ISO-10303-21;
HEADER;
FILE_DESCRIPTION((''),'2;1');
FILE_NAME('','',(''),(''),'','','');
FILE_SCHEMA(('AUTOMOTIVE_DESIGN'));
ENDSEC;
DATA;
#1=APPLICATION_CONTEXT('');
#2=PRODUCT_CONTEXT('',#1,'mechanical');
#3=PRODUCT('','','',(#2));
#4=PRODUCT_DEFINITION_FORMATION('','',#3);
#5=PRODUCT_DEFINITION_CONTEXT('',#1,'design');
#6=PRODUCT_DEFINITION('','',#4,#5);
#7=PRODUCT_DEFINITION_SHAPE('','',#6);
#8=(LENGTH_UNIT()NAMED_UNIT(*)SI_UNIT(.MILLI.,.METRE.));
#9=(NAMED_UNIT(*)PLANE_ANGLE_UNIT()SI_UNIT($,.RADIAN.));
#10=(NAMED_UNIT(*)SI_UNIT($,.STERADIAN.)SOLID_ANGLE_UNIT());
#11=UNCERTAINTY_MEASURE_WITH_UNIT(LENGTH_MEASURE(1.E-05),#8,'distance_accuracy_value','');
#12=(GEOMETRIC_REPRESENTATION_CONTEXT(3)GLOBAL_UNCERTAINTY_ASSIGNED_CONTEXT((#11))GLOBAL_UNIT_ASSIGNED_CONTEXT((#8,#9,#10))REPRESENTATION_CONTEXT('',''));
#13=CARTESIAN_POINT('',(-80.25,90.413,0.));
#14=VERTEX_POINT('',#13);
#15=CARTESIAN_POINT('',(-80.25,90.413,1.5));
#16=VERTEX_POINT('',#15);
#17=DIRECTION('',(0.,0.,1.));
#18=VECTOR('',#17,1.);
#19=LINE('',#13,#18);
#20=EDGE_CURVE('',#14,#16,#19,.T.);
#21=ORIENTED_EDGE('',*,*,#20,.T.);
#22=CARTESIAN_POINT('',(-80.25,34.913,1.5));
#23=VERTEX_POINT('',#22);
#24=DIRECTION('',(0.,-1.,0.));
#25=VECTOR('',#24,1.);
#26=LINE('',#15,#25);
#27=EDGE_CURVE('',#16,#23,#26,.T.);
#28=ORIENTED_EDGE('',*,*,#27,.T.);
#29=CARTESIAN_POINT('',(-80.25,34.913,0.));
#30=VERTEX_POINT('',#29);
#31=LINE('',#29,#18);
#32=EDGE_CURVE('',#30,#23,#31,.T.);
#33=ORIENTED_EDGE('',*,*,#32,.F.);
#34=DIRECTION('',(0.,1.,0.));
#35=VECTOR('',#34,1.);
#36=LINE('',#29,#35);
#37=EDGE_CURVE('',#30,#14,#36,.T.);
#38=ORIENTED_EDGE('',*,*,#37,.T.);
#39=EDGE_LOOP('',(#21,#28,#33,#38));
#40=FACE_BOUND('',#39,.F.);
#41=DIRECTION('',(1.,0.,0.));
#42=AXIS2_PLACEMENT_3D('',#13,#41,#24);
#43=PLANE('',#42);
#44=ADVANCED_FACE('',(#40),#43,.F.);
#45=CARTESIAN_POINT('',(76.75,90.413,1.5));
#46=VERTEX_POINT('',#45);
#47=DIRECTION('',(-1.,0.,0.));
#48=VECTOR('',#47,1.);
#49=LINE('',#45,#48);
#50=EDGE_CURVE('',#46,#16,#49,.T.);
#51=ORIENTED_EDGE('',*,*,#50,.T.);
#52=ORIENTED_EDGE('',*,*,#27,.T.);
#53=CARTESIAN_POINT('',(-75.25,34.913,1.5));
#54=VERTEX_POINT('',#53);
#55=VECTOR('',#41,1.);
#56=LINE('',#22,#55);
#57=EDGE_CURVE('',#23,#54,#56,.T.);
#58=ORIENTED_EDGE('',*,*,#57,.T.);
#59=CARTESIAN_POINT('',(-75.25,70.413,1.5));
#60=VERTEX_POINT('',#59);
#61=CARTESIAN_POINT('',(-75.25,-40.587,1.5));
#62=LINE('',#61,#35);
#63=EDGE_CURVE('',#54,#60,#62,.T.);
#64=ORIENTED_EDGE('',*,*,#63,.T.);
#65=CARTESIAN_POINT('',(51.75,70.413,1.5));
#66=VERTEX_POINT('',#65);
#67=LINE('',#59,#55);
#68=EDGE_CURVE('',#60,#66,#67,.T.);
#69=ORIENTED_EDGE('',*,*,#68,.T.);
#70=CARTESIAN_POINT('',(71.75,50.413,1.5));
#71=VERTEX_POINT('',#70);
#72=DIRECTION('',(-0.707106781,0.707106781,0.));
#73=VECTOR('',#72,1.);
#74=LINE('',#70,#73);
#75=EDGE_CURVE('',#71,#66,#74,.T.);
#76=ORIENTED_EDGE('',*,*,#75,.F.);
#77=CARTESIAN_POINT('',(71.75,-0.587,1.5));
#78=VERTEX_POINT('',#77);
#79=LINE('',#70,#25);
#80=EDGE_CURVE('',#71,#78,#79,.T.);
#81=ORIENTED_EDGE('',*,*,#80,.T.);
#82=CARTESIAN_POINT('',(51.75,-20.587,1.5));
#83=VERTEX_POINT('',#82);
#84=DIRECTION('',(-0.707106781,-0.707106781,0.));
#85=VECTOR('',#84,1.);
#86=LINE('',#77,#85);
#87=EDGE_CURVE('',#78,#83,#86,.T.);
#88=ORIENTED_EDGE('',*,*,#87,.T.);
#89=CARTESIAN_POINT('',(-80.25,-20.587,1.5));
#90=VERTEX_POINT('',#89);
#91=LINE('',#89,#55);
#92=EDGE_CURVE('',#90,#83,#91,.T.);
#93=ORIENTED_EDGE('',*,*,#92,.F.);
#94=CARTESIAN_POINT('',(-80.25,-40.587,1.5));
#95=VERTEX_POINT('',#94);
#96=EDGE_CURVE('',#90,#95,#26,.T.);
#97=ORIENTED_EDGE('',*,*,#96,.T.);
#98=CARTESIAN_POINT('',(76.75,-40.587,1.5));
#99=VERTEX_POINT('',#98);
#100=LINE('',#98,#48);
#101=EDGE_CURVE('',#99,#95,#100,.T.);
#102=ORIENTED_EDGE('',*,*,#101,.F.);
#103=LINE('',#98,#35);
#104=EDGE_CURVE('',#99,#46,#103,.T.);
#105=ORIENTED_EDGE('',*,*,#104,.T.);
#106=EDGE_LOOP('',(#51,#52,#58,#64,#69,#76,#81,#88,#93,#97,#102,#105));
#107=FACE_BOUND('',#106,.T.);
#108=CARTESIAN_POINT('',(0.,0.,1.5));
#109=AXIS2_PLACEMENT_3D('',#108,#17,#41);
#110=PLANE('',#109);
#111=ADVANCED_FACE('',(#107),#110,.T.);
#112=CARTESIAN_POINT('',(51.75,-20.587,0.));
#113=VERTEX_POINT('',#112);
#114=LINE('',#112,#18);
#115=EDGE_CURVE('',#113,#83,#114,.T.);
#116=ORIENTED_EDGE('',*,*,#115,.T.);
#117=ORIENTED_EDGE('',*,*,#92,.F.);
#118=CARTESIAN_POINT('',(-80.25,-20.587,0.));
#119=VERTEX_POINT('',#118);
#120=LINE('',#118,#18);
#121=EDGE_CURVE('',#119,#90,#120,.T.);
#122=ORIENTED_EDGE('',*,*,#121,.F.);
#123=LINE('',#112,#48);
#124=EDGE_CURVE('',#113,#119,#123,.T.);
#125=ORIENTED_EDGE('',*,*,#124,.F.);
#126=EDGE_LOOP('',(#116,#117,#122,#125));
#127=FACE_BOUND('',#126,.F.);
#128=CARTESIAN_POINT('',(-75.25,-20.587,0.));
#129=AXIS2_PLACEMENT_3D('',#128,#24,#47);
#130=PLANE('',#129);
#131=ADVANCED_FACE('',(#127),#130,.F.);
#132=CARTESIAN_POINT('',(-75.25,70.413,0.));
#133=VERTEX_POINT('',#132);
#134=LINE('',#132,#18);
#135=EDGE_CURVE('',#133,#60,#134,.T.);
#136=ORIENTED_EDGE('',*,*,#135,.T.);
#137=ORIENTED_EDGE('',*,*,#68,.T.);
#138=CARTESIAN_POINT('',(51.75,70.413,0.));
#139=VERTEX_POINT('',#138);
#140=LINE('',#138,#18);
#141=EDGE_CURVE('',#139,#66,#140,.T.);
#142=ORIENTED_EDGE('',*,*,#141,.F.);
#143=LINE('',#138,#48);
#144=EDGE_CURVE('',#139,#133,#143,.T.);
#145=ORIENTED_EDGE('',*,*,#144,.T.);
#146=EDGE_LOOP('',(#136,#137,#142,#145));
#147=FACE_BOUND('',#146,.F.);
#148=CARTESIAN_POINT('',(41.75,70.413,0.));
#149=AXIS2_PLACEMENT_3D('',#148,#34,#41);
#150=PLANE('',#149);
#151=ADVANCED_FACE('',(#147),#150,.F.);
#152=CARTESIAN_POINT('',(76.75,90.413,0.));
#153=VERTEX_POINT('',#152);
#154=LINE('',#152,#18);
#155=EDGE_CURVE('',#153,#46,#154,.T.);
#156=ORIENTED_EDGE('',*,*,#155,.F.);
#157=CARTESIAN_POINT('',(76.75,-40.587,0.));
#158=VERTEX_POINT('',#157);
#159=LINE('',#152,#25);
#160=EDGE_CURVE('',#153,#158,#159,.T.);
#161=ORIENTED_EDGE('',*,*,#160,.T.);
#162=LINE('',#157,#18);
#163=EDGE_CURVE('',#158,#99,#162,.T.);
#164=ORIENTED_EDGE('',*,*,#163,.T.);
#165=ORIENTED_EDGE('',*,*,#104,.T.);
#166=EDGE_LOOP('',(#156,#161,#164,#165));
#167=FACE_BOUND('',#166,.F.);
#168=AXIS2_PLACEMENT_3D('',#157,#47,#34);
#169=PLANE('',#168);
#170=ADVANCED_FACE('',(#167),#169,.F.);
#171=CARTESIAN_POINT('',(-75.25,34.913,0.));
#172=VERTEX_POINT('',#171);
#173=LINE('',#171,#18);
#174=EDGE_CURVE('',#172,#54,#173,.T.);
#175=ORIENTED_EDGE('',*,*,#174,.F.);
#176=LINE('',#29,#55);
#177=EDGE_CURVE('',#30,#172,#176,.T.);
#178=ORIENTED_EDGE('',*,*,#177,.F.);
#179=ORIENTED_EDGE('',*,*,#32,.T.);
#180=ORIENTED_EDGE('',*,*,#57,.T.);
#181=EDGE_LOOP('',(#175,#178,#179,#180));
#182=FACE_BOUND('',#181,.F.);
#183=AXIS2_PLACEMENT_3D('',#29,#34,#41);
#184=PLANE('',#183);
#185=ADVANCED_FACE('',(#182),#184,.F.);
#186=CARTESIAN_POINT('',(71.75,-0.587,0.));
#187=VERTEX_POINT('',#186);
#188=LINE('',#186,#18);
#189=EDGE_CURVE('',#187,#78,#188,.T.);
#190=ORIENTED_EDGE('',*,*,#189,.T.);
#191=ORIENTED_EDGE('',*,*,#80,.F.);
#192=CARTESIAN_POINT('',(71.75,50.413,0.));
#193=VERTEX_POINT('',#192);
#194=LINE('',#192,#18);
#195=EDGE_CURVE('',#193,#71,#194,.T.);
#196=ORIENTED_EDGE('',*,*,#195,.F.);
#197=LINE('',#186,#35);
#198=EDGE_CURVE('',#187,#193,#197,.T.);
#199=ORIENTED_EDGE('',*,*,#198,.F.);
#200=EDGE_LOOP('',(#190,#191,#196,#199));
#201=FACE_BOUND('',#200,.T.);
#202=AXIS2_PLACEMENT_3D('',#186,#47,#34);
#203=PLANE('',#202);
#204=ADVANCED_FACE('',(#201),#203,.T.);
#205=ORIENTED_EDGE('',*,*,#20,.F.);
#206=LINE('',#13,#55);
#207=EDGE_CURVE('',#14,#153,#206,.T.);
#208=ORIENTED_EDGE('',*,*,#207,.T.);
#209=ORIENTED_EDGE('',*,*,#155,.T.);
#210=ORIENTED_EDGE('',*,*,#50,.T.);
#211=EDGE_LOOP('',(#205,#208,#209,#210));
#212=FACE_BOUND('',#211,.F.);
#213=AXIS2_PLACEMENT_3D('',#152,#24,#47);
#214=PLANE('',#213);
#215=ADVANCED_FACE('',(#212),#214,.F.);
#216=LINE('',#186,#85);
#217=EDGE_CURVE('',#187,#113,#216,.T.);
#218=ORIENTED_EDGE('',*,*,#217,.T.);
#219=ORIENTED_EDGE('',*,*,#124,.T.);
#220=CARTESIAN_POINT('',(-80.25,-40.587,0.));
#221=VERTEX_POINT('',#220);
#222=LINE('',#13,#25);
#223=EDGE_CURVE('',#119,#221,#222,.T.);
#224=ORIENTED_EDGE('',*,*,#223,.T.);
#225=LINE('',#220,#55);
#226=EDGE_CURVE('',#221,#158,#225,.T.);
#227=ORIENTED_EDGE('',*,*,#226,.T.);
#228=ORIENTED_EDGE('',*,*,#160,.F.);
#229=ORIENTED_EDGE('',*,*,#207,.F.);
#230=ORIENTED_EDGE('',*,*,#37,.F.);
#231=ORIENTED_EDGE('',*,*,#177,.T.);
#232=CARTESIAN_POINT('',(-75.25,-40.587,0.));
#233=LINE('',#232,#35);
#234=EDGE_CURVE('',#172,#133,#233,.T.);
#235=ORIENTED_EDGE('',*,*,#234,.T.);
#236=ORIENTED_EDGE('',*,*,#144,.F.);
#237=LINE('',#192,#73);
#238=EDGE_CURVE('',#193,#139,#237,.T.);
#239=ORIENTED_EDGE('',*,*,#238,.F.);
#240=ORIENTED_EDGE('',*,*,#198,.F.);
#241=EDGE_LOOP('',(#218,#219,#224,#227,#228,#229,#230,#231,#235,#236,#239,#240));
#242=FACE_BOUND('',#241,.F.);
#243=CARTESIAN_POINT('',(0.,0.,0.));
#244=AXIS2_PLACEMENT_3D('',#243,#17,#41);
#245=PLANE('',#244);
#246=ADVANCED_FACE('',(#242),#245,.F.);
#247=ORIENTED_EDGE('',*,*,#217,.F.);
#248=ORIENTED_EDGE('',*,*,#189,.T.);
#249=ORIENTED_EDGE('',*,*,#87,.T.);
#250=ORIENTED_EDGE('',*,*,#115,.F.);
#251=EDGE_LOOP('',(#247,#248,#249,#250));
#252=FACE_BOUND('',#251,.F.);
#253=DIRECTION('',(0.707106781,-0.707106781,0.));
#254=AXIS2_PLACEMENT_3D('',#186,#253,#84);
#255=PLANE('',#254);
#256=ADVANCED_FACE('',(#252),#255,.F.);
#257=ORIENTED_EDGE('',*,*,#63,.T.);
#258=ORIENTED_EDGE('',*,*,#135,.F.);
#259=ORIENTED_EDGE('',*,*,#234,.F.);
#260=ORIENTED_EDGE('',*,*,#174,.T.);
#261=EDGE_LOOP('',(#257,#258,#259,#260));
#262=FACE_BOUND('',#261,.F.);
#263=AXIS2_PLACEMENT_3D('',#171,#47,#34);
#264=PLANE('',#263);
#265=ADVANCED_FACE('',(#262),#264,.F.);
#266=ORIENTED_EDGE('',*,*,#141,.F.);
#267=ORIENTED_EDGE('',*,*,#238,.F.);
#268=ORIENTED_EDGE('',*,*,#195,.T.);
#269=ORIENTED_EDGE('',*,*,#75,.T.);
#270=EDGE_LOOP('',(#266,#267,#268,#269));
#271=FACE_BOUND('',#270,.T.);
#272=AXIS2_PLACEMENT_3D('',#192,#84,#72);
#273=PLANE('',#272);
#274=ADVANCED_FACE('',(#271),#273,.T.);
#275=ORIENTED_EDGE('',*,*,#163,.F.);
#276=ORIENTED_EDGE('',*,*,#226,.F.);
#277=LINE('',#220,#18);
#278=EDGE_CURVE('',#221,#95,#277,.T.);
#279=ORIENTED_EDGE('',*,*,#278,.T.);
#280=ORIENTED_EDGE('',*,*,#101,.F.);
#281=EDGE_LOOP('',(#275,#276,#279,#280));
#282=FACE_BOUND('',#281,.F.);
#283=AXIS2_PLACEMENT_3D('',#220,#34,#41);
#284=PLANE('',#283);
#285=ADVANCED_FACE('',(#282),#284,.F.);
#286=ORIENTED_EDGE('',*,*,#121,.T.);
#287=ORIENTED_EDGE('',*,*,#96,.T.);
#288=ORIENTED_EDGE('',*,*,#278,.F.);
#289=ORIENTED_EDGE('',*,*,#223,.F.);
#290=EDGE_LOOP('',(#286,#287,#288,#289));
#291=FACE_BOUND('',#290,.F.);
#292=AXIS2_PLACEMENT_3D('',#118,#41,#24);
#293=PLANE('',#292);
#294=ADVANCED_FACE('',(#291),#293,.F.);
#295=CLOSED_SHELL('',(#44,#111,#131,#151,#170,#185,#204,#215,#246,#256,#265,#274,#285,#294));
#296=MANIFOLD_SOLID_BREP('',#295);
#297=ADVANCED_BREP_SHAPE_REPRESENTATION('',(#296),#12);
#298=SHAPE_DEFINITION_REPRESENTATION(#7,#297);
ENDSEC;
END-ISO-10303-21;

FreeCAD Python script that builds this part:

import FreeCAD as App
import Part
import Sketcher

doc = App.newDocument("Part")
body = doc.addObject("PartDesign::Body", "Body")

sketch1 = body.newObject("Sketcher::SketchObject", "Sketch")
sketch1.AttachmentSupport = (doc.getObject("XY_Plane"), [""])
sketch1.MapMode = "FlatFace"
sketch1.addGeometry([
    Part.LineSegment(App.Vector(-80, -21, 0), App.Vector(-80, -41, 0)),
    Part.LineSegment(App.Vector(-80, -41, 0), App.Vector(77, -41, 0)),
    Part.LineSegment(App.Vector(77, -41, 0), App.Vector(77, 90, 0)),
    Part.LineSegment(App.Vector(77, 90, 0), App.Vector(-80, 90, 0)),
    Part.LineSegment(App.Vector(-80, 90, 0), App.Vector(-80, 35, 0)),
    Part.LineSegment(App.Vector(-80, 35, 0), App.Vector(-75, 35, 0)),
    Part.LineSegment(App.Vector(-75, 35, 0), App.Vector(-75, 70, 0)),
    Part.LineSegment(App.Vector(-75, 70, 0), App.Vector(52, 70, 0)),
    Part.LineSegment(App.Vector(52, 70, 0), App.Vector(72, 50, 0)),
    Part.LineSegment(App.Vector(72, 50, 0), App.Vector(72, -1, 0)),
    Part.LineSegment(App.Vector(72, -1, 0), App.Vector(52, -21, 0)),
    Part.LineSegment(App.Vector(52, -21, 0), App.Vector(-80, -21, 0)),
], False)
sketch1.addConstraint([
    Sketcher.Constraint("Coincident", 0, 2, 1, 1),
    Sketcher.Constraint("Coincident", 1, 2, 2, 1),
    Sketcher.Constraint("Coincident", 2, 2, 3, 1),
    Sketcher.Constraint("Coincident", 3, 2, 4, 1),
    Sketcher.Constraint("Coincident", 4, 2, 5, 1),
    Sketcher.Constraint("Coincident", 5, 2, 6, 1),
    Sketcher.Constraint("Coincident", 6, 2, 7, 1),
    Sketcher.Constraint("Coincident", 7, 2, 8, 1),
    Sketcher.Constraint("Coincident", 8, 2, 9, 1),
    Sketcher.Constraint("Coincident", 9, 2, 10, 1),
    Sketcher.Constraint("Coincident", 10, 2, 11, 1),
    Sketcher.Constraint("Coincident", 11, 2, 0, 1),
    Sketcher.Constraint("Vertical", 0),
    Sketcher.Constraint("Horizontal", 1),
    Sketcher.Constraint("Vertical", 2),
    Sketcher.Constraint("Horizontal", 3),
    Sketcher.Constraint("Vertical", 4),
    Sketcher.Constraint("Horizontal", 5),
    Sketcher.Constraint("Vertical", 6),
    Sketcher.Constraint("Horizontal", 7),
    Sketcher.Constraint("Vertical", 9),
    Sketcher.Constraint("Horizontal", 11),
    Sketcher.Constraint("Perpendicular", 8, 10),
    Sketcher.Constraint("Vertical", 0, 2, 3, 2),
    Sketcher.Constraint("Vertical", 7, 2, 10, 2),
    Sketcher.Constraint("Equal", 8, 10),
    Sketcher.Constraint("DistanceX", 1, 1, 1, 2, 157.0),
    Sketcher.Constraint("DistanceX", 5, 1, 5, 2, 5.0),
    Sketcher.Constraint("DistanceY", 0, 2, 0, 1, 20.0),
    Sketcher.Constraint("DistanceY", 2, 1, 2, 2, 131.0),
    Sketcher.Constraint("DistanceY", 6, 2, 3, 2, 20.0),
    Sketcher.Constraint("DistanceX", 7, 2, 8, 2, 20.0),
    Sketcher.Constraint("DistanceX", 8, 2, 2, 2, 5.0),
    Sketcher.Constraint("DistanceX", 0, 2, -1, 1, 80.25),
    Sketcher.Constraint("DistanceY", 4, 2, 4, 1, 55.5),
    Sketcher.Constraint("DistanceY", 0, 2, -1, 1, 40.587),
])
pad1 = body.newObject("PartDesign::Pad", "Pad")
pad1.Profile = sketch1
pad1.Length = 1.5

doc.recompute()
